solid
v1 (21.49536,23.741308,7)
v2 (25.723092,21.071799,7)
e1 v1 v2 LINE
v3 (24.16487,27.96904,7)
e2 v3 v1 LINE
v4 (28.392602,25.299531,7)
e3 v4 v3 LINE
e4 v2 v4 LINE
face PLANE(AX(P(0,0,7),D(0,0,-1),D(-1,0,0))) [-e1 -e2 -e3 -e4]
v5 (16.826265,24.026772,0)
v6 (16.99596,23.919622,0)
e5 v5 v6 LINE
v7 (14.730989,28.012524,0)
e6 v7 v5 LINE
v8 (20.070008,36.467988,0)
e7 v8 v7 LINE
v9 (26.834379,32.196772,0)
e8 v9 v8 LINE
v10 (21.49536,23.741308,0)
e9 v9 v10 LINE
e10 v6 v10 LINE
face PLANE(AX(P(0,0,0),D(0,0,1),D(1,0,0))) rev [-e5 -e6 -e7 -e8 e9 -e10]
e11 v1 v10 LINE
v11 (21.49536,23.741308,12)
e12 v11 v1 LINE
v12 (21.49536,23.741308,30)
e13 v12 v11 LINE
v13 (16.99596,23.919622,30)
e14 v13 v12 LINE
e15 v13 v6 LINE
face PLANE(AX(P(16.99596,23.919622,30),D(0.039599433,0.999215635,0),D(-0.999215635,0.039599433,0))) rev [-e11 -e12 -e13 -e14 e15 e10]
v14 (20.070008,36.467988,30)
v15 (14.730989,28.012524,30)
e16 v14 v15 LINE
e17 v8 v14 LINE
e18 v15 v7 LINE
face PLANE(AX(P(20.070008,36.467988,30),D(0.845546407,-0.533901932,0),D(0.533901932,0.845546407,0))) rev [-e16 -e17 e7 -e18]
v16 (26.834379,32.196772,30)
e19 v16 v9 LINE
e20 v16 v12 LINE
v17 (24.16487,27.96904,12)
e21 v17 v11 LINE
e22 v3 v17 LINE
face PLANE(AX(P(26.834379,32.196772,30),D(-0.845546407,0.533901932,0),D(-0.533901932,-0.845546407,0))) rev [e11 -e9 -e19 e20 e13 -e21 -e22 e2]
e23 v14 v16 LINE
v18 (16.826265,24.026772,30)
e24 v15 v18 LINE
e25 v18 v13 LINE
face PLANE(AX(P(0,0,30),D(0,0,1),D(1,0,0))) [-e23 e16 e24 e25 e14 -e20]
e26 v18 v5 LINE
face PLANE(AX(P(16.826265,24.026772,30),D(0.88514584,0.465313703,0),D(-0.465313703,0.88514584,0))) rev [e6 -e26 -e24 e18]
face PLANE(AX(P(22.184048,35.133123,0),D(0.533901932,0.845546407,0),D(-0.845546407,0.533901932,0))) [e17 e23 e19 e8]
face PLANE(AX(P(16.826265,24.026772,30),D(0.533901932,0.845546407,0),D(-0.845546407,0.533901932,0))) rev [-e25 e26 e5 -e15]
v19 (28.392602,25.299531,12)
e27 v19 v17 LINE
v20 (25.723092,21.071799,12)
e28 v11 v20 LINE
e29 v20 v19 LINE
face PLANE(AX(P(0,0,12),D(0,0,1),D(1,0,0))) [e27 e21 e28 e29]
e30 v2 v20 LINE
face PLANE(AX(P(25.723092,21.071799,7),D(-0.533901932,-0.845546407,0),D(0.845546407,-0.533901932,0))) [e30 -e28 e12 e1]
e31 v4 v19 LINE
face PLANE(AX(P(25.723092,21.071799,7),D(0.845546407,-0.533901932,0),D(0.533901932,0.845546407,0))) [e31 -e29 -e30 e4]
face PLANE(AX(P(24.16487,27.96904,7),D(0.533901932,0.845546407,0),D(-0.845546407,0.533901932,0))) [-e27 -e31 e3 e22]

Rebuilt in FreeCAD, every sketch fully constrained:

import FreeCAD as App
import Part
import Sketcher

V = App.Vector
Q = App.Units.Quantity


def add_polygon(sketch, points):
    """Adds a closed chain of lines whose ends are joined by coincident constraints."""
    first, n = sketch.GeometryCount, len(points)
    for a, b in zip(points, points[1:] + points[:1]):
        sketch.addGeometry(Part.LineSegment(App.Vector(*a, 0), App.Vector(*b, 0)), False)
    for i in range(n):
        sketch.addConstraint(Sketcher.Constraint("Coincident", first + i, 2, first + (i + 1) % n, 1))

doc = App.newDocument("Part")
body = doc.addObject("PartDesign::Body", "Body")

# Sketch on XY plane
sketch1 = body.newObject("Sketcher::SketchObject", "Sketch")
sketch1.AttachmentSupport = (doc.getObject("XY_Plane"), [""])
sketch1.MapMode = "FlatFace"
add_polygon(sketch1, [(14.730989, 28.012524), (16.826265, 24.026772), (16.99596, 23.919622), (21.49536, 23.741308)])  # lines 0-3
sketch1.addConstraint(Sketcher.Constraint("Parallel", 1, 3))
sketch1.addConstraint(Sketcher.Constraint("Equal", 0, 2))
sketch1.addConstraint(Sketcher.Constraint("Distance", 3, Q("8 mm")))
sketch1.addConstraint(Sketcher.Constraint("DistanceX", 1, 2, 2, 2, Q("4.4994 mm")))
sketch1.addConstraint(Sketcher.Constraint("DistanceY", 1, 2, 3, 2, Q("4.092902 mm")))
sketch1.addConstraint(Sketcher.Constraint("Distance", 0, Q("4.502932 mm")))
sketch1.addConstraint(Sketcher.Constraint("DistanceX", -1, 1, 1, 2, Q("16.99596 mm")))
sketch1.addConstraint(Sketcher.Constraint("DistanceY", -1, 1, 1, 2, Q("23.919622 mm")))
pad1 = body.newObject("PartDesign::Pad", "Pad")
pad1.Profile = sketch1
pad1.Length = 30

# Sketch on an angled plane
sketch2 = body.newObject("Sketcher::SketchObject", "Sketch001")
sketch2.Placement = App.Placement(V(16.845029, 26.677659, 0), App.Rotation(V(0.845546407, -0.533901932, 0), V(0, 0, -0.999999999), V(0.533901932, 0.845546407, 0), "ZXY"))
add_polygon(sketch2, [(-2.500206, 0), (-2.500206, -30), (5.499794, -30), (5.499794, 0)])  # lines 0-3
sketch2.addConstraint(Sketcher.Constraint("Vertical", 0))
sketch2.addConstraint(Sketcher.Constraint("Horizontal", 1))
sketch2.addConstraint(Sketcher.Constraint("Vertical", 2))
sketch2.addConstraint(Sketcher.Constraint("Horizontal", 3))
sketch2.addConstraint(Sketcher.Constraint("PointOnObject", 2, 2, -1))
sketch2.addConstraint(Sketcher.Constraint("DistanceX", 1, 1, 1, 2, Q("8 mm")))
sketch2.addConstraint(Sketcher.Constraint("DistanceY", 0, 2, 0, 1, Q("30 mm")))
sketch2.addConstraint(Sketcher.Constraint("DistanceX", 0, 2, -1, 1, Q("2.500206 mm")))
pad2 = body.newObject("PartDesign::Pad", "Pad001")
pad2.Profile = sketch2
pad2.Length = 10

# Sketch on XY plane
sketch3 = body.newObject("Sketcher::SketchObject", "Sketch002")
sketch3.AttachmentSupport = (doc.getObject("XY_Plane"), [""])
sketch3.MapMode = "FlatFace"
sketch3.AttachmentOffset = App.Placement(V(0, 0, 30), App.Rotation())
add_polygon(sketch3, [(28.392602, 25.299531), (24.16487, 27.96904), (21.49536, 23.741308), (25.723092, 21.071799)])  # lines 0-3
sketch3.addConstraint(Sketcher.Constraint("Perpendicular", 0, 1))
sketch3.addConstraint(Sketcher.Constraint("Perpendicular", 1, 2))
sketch3.addConstraint(Sketcher.Constraint("Perpendicular", 2, 3))
sketch3.addConstraint(Sketcher.Constraint("Equal", 0, 1))
sketch3.addConstraint(Sketcher.Constraint("Distance", 0, Q("5 mm")))
sketch3.addConstraint(Sketcher.Constraint("DistanceY", -1, 1, 2, 2, Q("21.071799 mm")))
sketch3.addConstraint(Sketcher.Constraint("DistanceX", -1, 1, 3, 2, Q("28.392602 mm")))
sketch3.addConstraint(Sketcher.Constraint("DistanceX", -1, 1, 0, 2, Q("24.16487 mm")))
pad3 = body.newObject("PartDesign::Pad", "Pad002")
pad3.Profile = sketch3
pad3.Length = 23
pad3.Reversed = True

# Sketch on XY plane
sketch4 = body.newObject("Sketcher::SketchObject", "Sketch003")
sketch4.AttachmentSupport = (doc.getObject("XY_Plane"), [""])
sketch4.MapMode = "FlatFace"
sketch4.AttachmentOffset = App.Placement(V(0, 0, 30), App.Rotation())
add_polygon(sketch4, [(24.16487, 27.96904), (21.49536, 23.741308), (25.723092, 21.071799), (28.392602, 25.299531)])  # lines 0-3
sketch4.addConstraint(Sketcher.Constraint("Perpendicular", 0, 1))
sketch4.addConstraint(Sketcher.Constraint("Perpendicular", 1, 2))
sketch4.addConstraint(Sketcher.Constraint("Perpendicular", 2, 3))
sketch4.addConstraint(Sketcher.Constraint("Equal", 0, 1))
sketch4.addConstraint(Sketcher.Constraint("Distance", 0, Q("5 mm")))
sketch4.addConstraint(Sketcher.Constraint("DistanceY", -1, 1, 1, 2, Q("21.071799 mm")))
sketch4.addConstraint(Sketcher.Constraint("DistanceX", -1, 1, 2, 2, Q("28.392602 mm")))
sketch4.addConstraint(Sketcher.Constraint("DistanceX", -1, 1, 0, 2, Q("21.49536 mm")))
pocket1 = body.newObject("PartDesign::Pocket", "Pocket")
pocket1.Profile = sketch4
pocket1.Length = 18

doc.recompute()
